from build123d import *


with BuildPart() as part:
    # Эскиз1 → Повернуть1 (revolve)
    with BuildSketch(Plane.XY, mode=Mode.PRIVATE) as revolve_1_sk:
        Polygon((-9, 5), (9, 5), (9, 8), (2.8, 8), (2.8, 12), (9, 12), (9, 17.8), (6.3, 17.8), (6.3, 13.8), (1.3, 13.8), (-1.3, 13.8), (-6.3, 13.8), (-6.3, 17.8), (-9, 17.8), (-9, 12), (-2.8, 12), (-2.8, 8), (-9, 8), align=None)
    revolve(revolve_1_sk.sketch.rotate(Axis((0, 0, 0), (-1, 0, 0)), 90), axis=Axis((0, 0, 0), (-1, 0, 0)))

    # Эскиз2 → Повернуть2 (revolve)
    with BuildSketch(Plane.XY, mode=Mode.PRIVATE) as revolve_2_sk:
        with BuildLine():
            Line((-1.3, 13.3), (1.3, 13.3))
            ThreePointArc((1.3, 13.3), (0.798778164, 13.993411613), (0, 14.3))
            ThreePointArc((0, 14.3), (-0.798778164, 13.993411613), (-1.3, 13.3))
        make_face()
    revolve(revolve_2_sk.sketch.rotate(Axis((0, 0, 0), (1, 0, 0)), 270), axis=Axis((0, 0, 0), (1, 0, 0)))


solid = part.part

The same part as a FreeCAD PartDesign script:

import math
import FreeCAD as App
import Part
import Sketcher
from FreeCAD import Vector
Q = App.Units.Quantity


def add_polygon(sketch, points):
    """Adds a closed chain of lines whose ends are joined by coincident constraints."""
    first, n = sketch.GeometryCount, len(points)
    for a, b in zip(points, points[1:] + points[:1]):
        sketch.addGeometry(Part.LineSegment(App.Vector(*a, 0), App.Vector(*b, 0)), False)
    for i in range(n):
        sketch.addConstraint(Sketcher.Constraint("Coincident", first + i, 2, first + (i + 1) % n, 1))

doc = App.newDocument("Part")
params = doc.addObject("Spreadsheet::Sheet", "Params")
for row, (alias, value) in enumerate([
    ("sketch1_width", "18 mm"),
    ("sketch1_height", "3 mm"),
    ("sketch1_height2", "4 mm"),
    ("sketch1_width2", "6.2 mm"),
    ("sketch1_width3", "2.7 mm"),
    ("revolution_angle", "360 deg"),
    ("sketch2_radius", "1.5 mm"),
    ("sketch2_width", "2.6 mm"),
    ("revolution2_angle", "360 deg"),
], start=1):
    params.set(f"A{row}", alias)
    params.set(f"B{row}", "=" + value)
    params.setAlias(f"B{row}", alias)

body = doc.addObject("PartDesign::Body", "Body")

# Sketch on XY plane
sketch1 = body.newObject("Sketcher::SketchObject", "Sketch")
sketch1.AttachmentSupport = (doc.getObject("XY_Plane"), [""])
sketch1.MapMode = "FlatFace"
add_polygon(sketch1, [(-9, 5), (9, 5), (9, 8), (2.8, 8), (2.8, 12), (9, 12), (9, 17.8), (6.3, 17.8), (6.3, 13.8), (-6.3, 13.8), (-6.3, 17.8), (-9, 17.8), (-9, 12), (-2.8, 12), (-2.8, 8), (-9, 8)])  # lines 0-15
sketch1.addConstraint(Sketcher.Constraint("Horizontal", 0))
sketch1.addConstraint(Sketcher.Constraint("Vertical", 1))
sketch1.addConstraint(Sketcher.Constraint("Horizontal", 2))
sketch1.addConstraint(Sketcher.Constraint("Vertical", 3))
sketch1.addConstraint(Sketcher.Constraint("Horizontal", 4))
sketch1.addConstraint(Sketcher.Constraint("Vertical", 5))
sketch1.addConstraint(Sketcher.Constraint("Horizontal", 6))
sketch1.addConstraint(Sketcher.Constraint("Vertical", 7))
sketch1.addConstraint(Sketcher.Constraint("Horizontal", 8))
sketch1.addConstraint(Sketcher.Constraint("Vertical", 9))
sketch1.addConstraint(Sketcher.Constraint("Horizontal", 10))
sketch1.addConstraint(Sketcher.Constraint("Vertical", 11))
sketch1.addConstraint(Sketcher.Constraint("Horizontal", 12))
sketch1.addConstraint(Sketcher.Constraint("Vertical", 13))
sketch1.addConstraint(Sketcher.Constraint("Horizontal", 14))
sketch1.addConstraint(Sketcher.Constraint("Vertical", 15))
sketch1.addConstraint(Sketcher.Constraint("Symmetric", 6, 2, 9, 2, -2))
sketch1.addConstraint(Sketcher.Constraint("Symmetric", 4, 2, 11, 2, -2))
sketch1.addConstraint(Sketcher.Constraint("Symmetric", 2, 2, 13, 2, -2))
sketch1.addConstraint(Sketcher.Constraint("Vertical", 1, 2, 4, 2))
sketch1.addConstraint(Sketcher.Constraint("Vertical", 11, 2, 14, 2))
sketch1.addConstraint(Sketcher.Constraint("Equal", 3, 7))
sketch1.addConstraint(Sketcher.Constraint("DistanceX", 0, 1, 0, 2, Q("18 mm")))
sketch1.addConstraint(Sketcher.Constraint("DistanceY", 1, 1, 1, 2, Q("3 mm")))
sketch1.addConstraint(Sketcher.Constraint("DistanceY", 3, 1, 3, 2, Q("4 mm")))
sketch1.addConstraint(Sketcher.Constraint("DistanceX", 2, 2, 2, 1, Q("6.2 mm")))
sketch1.addConstraint(Sketcher.Constraint("DistanceX", 6, 2, 6, 1, Q("2.7 mm")))
sketch1.addConstraint(Sketcher.Constraint("DistanceY", 5, 1, 5, 2, Q("5.8 mm")))
sketch1.addConstraint(Sketcher.Constraint("DistanceY", -1, 1, 0, 2, Q("5 mm")))
sketch1.setExpression("Constraints[38]", "Params.sketch1_width")
sketch1.setExpression("Constraints[39]", "Params.sketch1_height")
sketch1.setExpression("Constraints[40]", "Params.sketch1_height2")
sketch1.setExpression("Constraints[41]", "Params.sketch1_width2")
sketch1.setExpression("Constraints[42]", "Params.sketch1_width3")
revolution = body.newObject("PartDesign::Revolution", "Revolution")
revolution.Profile = sketch1
revolution.ReferenceAxis = (sketch1, ["H_Axis"])
revolution.setExpression("Angle", "Params.revolution_angle")

# Sketch on XY plane
sketch2 = body.newObject("Sketcher::SketchObject", "Sketch001")
sketch2.AttachmentSupport = (doc.getObject("XY_Plane"), [""])
sketch2.MapMode = "FlatFace"
sketch2.addGeometry(Part.LineSegment(Vector(-1.3, 13.3, 0), Vector(1.3, 13.3, 0)), False)
sketch2.addGeometry(Part.ArcOfCircle(Part.Circle(Vector(-0.1, 12.8, 0), Vector(0, 0, 1), 1.5), math.radians(19), math.radians(86)), False)
sketch2.addGeometry(Part.ArcOfCircle(Part.Circle(Vector(0.1, 12.8, 0), Vector(0, 0, 1), 1.5), math.radians(94), math.radians(161)), False)
sketch2.addConstraint(Sketcher.Constraint("Coincident", 0, 2, 1, 1))
sketch2.addConstraint(Sketcher.Constraint("Coincident", 1, 2, 2, 1))
sketch2.addConstraint(Sketcher.Constraint("Coincident", 2, 2, 0, 1))
sketch2.addConstraint(Sketcher.Constraint("Horizontal", 0))
sketch2.addConstraint(Sketcher.Constraint("Equal", 1, 2))
sketch2.addConstraint(Sketcher.Constraint("Symmetric", 1, 3, 2, 3, -2))
sketch2.addConstraint(Sketcher.Constraint("Radius", 1, Q("1.5 mm")))
sketch2.addConstraint(Sketcher.Constraint("DistanceX", 0, 1, 0, 2, Q("2.6 mm")))
sketch2.addConstraint(Sketcher.Constraint("DistanceY", 0, 2, 1, 2, Q("1 mm")))
sketch2.addConstraint(Sketcher.Constraint("DistanceY", -1, 1, 0, 2, Q("13.3 mm")))
sketch2.setExpression("Constraints[6]", "Params.sketch2_radius")
sketch2.setExpression("Constraints[7]", "Params.sketch2_width")
revolution2 = body.newObject("PartDesign::Revolution", "Revolution001")
revolution2.Profile = sketch2
revolution2.ReferenceAxis = (sketch2, ["H_Axis"])
revolution2.setExpression("Angle", "Params.revolution2_angle")

doc.recompute()
